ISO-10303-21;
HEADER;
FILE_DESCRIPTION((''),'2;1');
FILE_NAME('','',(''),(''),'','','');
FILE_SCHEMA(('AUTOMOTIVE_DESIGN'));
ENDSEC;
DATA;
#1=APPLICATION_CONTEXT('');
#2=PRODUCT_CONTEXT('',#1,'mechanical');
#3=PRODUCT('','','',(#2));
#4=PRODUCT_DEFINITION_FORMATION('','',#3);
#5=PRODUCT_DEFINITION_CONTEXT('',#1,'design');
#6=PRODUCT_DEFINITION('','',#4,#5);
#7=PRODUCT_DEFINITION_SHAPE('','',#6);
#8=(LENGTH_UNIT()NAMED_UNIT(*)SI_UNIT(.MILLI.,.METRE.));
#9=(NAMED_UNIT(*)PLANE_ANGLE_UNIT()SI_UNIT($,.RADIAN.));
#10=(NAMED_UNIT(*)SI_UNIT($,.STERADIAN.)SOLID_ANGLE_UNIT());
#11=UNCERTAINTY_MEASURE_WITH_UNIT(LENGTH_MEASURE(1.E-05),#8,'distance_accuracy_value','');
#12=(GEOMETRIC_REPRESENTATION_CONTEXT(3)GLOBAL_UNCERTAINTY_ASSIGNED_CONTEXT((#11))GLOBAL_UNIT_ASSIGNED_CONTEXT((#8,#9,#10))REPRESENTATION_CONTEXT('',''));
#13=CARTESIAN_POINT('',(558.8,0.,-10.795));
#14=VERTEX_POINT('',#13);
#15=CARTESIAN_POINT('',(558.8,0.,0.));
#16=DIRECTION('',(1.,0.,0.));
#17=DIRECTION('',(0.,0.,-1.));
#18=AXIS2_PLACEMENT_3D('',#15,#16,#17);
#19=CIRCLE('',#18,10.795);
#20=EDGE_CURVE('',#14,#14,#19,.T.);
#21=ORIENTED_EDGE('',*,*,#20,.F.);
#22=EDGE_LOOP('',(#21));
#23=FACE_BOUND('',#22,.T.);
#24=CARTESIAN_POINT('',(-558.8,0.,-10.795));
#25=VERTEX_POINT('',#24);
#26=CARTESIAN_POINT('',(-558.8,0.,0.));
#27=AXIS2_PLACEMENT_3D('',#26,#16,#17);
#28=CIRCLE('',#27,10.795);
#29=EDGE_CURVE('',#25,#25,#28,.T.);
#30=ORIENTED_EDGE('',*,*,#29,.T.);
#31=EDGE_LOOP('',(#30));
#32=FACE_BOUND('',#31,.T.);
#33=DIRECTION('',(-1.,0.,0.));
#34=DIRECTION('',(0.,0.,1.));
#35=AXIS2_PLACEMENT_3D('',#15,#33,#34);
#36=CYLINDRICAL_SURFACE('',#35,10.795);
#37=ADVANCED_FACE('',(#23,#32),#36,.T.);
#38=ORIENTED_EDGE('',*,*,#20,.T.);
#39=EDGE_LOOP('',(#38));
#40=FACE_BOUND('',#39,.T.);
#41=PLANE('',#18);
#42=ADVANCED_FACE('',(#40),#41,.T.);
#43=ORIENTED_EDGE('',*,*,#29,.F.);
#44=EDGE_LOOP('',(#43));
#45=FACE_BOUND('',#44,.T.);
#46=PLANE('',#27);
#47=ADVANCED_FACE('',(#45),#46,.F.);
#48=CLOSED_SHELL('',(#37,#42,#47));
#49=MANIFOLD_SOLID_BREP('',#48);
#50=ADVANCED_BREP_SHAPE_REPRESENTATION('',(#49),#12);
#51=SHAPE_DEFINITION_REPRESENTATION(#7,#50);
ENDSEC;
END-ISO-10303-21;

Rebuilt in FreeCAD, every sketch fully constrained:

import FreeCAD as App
import Part
import Sketcher

V = App.Vector
Q = App.Units.Quantity

doc = App.newDocument("Part")
params = doc.addObject("Spreadsheet::Sheet", "Params")
for row, (alias, value) in enumerate([
    ("sketch1_diameter", "0.85 in"),
    ("pad1_length", "44 in"),
], start=1):
    params.set(f"A{row}", alias)
    params.set(f"B{row}", "=" + value)
    params.setAlias(f"B{row}", alias)

body = doc.addObject("PartDesign::Body", "Body")

sketch1 = body.newObject("Sketcher::SketchObject", "Sketch")
sketch1.AttachmentSupport = (doc.getObject("YZ_Plane"), [""])
sketch1.MapMode = "FlatFace"
sketch1.addGeometry(Part.Circle(V(0, 0, 0), V(0, 0, 1), 11), False)
sketch1.addConstraint([
    Sketcher.Constraint("Coincident", 0, 3, -1, 1),
    Sketcher.Constraint("Diameter", 0, Q("0.85 in")),
])
sketch1.setExpression("Constraints[1]", "Params.sketch1_diameter")
pad1 = body.newObject("PartDesign::Pad", "Pad")
pad1.Profile = sketch1
pad1.setExpression("Length", "Params.pad1_length")
pad1.Midplane = True

doc.recompute()
